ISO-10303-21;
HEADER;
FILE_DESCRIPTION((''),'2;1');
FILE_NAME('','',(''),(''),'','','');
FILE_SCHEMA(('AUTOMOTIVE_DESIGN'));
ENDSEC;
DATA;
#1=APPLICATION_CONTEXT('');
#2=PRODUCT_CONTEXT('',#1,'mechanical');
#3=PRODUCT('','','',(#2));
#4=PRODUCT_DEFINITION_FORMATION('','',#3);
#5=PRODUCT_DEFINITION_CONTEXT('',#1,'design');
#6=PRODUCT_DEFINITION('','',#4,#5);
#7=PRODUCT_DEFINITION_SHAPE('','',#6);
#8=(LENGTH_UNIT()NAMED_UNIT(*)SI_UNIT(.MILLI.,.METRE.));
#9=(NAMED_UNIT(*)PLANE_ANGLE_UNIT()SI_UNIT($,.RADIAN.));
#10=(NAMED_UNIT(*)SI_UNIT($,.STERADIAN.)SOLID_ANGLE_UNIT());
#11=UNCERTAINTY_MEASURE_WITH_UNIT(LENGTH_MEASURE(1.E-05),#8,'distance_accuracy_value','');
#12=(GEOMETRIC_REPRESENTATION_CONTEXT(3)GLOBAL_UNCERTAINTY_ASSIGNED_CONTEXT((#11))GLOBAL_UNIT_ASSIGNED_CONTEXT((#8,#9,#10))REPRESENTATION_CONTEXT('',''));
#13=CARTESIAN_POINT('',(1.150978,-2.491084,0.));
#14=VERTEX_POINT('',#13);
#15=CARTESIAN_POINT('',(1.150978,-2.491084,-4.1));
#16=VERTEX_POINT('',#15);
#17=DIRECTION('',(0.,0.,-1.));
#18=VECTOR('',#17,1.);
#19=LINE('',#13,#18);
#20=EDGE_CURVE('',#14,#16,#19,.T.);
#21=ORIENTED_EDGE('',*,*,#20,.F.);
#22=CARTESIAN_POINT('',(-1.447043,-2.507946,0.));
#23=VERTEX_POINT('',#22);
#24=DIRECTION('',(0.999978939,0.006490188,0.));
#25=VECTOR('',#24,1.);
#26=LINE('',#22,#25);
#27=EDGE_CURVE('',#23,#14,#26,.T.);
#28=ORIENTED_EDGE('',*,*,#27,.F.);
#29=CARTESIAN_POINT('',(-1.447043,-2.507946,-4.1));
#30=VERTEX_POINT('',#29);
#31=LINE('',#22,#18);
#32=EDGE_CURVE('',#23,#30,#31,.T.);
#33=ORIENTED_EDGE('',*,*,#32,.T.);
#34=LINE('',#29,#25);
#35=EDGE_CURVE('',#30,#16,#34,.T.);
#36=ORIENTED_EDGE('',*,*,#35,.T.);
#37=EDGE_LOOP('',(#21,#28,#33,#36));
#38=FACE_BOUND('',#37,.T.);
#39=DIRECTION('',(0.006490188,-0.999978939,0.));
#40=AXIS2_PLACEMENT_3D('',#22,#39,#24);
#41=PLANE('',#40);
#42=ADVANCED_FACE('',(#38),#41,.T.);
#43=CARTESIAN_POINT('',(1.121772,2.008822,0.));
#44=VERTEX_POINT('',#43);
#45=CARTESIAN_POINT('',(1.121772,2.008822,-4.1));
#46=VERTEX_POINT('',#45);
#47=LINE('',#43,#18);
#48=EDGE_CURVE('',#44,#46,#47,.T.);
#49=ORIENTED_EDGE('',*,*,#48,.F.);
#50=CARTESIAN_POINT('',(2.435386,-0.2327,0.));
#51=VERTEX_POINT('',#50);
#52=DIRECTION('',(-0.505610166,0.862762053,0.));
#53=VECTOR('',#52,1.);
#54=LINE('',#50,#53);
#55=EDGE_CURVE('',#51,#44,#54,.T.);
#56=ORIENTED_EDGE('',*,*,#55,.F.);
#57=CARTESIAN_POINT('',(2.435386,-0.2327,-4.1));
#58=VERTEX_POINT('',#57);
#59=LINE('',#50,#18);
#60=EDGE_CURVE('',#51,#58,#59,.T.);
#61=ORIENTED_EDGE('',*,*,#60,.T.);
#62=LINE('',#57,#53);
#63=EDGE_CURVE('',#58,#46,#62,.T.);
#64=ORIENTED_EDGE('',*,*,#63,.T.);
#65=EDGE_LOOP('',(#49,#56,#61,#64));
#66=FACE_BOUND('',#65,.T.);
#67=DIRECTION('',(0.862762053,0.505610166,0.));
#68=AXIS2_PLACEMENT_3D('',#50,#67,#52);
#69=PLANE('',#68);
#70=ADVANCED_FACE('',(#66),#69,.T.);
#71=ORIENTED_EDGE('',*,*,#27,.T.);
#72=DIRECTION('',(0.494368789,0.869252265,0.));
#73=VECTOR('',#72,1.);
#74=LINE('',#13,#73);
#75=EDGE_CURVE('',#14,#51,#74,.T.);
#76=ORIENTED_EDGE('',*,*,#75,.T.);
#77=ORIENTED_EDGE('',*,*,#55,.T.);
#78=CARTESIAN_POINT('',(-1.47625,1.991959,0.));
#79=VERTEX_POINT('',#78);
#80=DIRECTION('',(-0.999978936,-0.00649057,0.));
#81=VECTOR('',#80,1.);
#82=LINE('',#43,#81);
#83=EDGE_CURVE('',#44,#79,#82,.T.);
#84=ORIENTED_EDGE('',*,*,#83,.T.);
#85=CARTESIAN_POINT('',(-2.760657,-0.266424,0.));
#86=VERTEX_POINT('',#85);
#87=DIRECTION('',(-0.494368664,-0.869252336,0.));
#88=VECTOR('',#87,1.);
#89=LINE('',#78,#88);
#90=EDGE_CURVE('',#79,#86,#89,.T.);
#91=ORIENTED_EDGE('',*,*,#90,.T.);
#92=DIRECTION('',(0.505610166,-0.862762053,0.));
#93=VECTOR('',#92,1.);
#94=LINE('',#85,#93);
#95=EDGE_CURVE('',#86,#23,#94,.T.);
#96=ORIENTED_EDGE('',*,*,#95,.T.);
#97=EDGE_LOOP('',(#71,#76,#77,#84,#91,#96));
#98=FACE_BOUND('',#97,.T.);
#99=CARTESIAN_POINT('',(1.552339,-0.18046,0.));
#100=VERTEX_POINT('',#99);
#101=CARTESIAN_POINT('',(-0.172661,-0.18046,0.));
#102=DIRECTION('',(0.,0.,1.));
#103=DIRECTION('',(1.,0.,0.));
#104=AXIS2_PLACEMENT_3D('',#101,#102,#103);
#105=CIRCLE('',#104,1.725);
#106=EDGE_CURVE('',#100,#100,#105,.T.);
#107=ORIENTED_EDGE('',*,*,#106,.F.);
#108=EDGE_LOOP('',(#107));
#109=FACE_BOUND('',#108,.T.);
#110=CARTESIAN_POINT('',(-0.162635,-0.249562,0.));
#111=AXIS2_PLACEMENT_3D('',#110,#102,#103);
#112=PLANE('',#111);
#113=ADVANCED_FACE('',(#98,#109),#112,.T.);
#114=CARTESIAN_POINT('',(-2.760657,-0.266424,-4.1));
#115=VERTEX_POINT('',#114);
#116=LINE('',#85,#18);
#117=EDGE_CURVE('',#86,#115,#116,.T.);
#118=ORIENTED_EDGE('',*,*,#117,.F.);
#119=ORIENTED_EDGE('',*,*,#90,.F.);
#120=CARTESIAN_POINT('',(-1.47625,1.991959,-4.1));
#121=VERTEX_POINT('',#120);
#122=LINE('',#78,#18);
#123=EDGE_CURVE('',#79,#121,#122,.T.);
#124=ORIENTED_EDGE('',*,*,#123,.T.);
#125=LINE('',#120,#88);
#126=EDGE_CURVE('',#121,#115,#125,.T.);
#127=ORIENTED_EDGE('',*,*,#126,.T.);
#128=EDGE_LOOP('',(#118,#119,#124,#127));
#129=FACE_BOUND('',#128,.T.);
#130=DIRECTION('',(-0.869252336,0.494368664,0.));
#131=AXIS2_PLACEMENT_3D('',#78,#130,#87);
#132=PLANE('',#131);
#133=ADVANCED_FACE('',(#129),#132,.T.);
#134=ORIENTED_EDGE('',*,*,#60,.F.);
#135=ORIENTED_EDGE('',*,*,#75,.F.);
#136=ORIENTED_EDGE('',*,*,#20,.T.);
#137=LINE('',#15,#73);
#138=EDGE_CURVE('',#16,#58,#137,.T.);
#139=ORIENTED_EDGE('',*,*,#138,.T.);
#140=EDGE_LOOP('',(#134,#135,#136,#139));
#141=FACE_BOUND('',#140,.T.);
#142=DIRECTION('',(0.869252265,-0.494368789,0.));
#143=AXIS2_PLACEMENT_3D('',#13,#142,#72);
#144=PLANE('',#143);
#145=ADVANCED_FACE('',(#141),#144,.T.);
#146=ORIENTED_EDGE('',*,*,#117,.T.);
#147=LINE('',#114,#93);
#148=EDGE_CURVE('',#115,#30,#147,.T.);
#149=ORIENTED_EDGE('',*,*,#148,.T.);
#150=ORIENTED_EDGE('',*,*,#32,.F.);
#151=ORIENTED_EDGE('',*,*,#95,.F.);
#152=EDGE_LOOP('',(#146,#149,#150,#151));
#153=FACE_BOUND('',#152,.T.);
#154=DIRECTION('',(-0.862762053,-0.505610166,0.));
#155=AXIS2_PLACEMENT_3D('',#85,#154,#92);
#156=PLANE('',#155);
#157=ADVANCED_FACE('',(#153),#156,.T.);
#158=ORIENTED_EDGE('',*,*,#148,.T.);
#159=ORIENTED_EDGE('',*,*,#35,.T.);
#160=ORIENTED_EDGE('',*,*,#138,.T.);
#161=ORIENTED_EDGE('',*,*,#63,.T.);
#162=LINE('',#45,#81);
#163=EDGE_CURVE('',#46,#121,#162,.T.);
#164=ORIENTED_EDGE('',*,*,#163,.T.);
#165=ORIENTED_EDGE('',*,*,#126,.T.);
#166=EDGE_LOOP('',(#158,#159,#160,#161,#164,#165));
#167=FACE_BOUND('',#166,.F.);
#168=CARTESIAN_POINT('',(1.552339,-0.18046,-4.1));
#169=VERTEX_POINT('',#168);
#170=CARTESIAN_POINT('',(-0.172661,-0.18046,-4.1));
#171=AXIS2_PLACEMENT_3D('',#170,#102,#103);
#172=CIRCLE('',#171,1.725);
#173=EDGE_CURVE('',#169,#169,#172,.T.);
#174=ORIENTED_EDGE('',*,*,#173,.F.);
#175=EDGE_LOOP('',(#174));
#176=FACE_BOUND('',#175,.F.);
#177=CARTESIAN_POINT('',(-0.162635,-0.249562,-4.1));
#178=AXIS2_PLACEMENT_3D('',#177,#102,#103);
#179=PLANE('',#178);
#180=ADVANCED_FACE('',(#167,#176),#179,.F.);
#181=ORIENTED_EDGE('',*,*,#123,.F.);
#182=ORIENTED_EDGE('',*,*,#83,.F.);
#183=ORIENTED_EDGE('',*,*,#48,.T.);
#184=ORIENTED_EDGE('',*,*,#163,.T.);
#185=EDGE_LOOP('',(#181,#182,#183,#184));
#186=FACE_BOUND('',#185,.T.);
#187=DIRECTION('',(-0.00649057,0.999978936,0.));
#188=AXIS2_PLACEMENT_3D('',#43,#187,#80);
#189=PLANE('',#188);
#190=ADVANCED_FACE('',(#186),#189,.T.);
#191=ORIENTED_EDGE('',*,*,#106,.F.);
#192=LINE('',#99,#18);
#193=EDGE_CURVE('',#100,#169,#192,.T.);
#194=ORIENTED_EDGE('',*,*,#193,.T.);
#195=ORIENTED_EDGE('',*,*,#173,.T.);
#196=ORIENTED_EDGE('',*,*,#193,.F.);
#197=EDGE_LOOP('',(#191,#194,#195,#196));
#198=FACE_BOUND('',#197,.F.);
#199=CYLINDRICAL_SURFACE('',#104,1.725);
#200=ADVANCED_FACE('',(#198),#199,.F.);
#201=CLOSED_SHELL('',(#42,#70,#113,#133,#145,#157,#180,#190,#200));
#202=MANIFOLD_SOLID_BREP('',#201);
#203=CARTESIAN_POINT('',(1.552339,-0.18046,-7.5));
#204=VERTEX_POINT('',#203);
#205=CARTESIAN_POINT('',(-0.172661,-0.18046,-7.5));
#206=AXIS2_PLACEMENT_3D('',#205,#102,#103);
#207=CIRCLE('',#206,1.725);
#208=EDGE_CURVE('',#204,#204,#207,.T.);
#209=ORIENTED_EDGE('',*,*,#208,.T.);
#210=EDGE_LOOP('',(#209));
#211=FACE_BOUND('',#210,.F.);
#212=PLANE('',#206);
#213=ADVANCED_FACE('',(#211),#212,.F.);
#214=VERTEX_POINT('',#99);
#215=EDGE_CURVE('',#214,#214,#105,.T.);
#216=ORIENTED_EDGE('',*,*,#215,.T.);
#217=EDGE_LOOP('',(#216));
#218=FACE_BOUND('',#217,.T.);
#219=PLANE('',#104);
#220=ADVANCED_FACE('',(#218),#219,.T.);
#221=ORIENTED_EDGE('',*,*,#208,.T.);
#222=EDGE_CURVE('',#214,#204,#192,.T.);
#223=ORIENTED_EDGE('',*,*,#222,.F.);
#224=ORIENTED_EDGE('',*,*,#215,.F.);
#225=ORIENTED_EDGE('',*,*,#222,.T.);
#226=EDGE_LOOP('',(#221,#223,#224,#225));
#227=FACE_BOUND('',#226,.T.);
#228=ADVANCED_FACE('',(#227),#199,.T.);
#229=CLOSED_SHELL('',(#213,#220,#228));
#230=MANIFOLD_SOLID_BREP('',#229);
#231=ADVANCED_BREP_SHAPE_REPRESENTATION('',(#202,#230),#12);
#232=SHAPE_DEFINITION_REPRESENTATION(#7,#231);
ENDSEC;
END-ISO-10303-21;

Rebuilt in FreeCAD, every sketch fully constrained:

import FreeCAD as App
import Part
import Sketcher
from FreeCAD import Vector
Q = App.Units.Quantity


def add_polygon(sketch, points):
    """Adds a closed chain of lines whose ends are joined by coincident constraints."""
    first, n = sketch.GeometryCount, len(points)
    for a, b in zip(points, points[1:] + points[:1]):
        sketch.addGeometry(Part.LineSegment(App.Vector(*a, 0), App.Vector(*b, 0)), False)
    for i in range(n):
        sketch.addConstraint(Sketcher.Constraint("Coincident", first + i, 2, first + (i + 1) % n, 1))

doc = App.newDocument("Part")
body = doc.addObject("PartDesign::Body", "Body")

# Sketch on XY plane
sketch1 = body.newObject("Sketcher::SketchObject", "Sketch")
sketch1.AttachmentSupport = (doc.getObject("XY_Plane"), [""])
sketch1.MapMode = "FlatFace"
add_polygon(sketch1, [(-1.47625, 1.991959), (-2.760657, -0.266424), (-1.447043, -2.507946), (1.150978, -2.491084), (2.435386, -0.2327), (1.121772, 2.008822)])  # lines 0-5
sketch1.addGeometry(Part.Circle(Vector(-0.172661, -0.18046, 0), Vector(0, 0, 1), 1.725), False)  # 6
sketch1.addConstraint(Sketcher.Constraint("Parallel", 0, 3))
sketch1.addConstraint(Sketcher.Constraint("Parallel", 1, 4))
sketch1.addConstraint(Sketcher.Constraint("Parallel", 2, 5))
sketch1.addConstraint(Sketcher.Constraint("Equal", 0, 1))
sketch1.addConstraint(Sketcher.Constraint("Equal", 1, 2))
sketch1.addConstraint(Sketcher.Constraint("Equal", 2, 3))
sketch1.addConstraint(Sketcher.Constraint("Diameter", 6, Q("3.45 mm")))
sketch1.addConstraint(Sketcher.Constraint("DistanceY", 3, 2, -1, 1, Q("0.2327 mm")))
sketch1.addConstraint(Sketcher.Constraint("DistanceX", 6, 3, -1, 1, Q("0.172661 mm")))
sketch1.addConstraint(Sketcher.Constraint("DistanceY", 6, 3, -1, 1, Q("0.18046 mm")))
sketch1.addConstraint(Sketcher.Constraint("DistanceX", -1, 1, 2, 2, Q("1.150978 mm")))
sketch1.addConstraint(Sketcher.Constraint("DistanceY", -1, 1, 4, 2, Q("2.008822 mm")))
sketch1.addConstraint(Sketcher.Constraint("DistanceX", 5, 2, -1, 1, Q("1.47625 mm")))
sketch1.addConstraint(Sketcher.Constraint("DistanceY", -1, 1, 5, 2, Q("1.991959 mm")))
sketch1.addConstraint(Sketcher.Constraint("DistanceX", 1, 2, 2, 2, Q("2.598021 mm")))
pad1 = body.newObject("PartDesign::Pad", "Pad")
pad1.Profile = sketch1
pad1.Length = 4.1
pad1.Reversed = True
body2 = doc.addObject("PartDesign::Body", "Body001")

# Sketch on XY plane
sketch2 = body2.newObject("Sketcher::SketchObject", "Sketch001")
sketch2.AttachmentSupport = (doc.getObject("XY_Plane001"), [""])
sketch2.MapMode = "FlatFace"
sketch2.addGeometry(Part.Circle(Vector(-0.172661, -0.18046, 0), Vector(0, 0, 1), 1.725), False)
sketch2.addConstraint(Sketcher.Constraint("Diameter", 0, Q("3.45 mm")))
sketch2.addConstraint(Sketcher.Constraint("DistanceX", 0, 3, -1, 1, Q("0.172661 mm")))
sketch2.addConstraint(Sketcher.Constraint("DistanceY", 0, 3, -1, 1, Q("0.18046 mm")))
pad2 = body2.newObject("PartDesign::Pad", "Pad001")
pad2.Profile = sketch2
pad2.Length = 7.5
pad2.Reversed = True

doc.recompute()
